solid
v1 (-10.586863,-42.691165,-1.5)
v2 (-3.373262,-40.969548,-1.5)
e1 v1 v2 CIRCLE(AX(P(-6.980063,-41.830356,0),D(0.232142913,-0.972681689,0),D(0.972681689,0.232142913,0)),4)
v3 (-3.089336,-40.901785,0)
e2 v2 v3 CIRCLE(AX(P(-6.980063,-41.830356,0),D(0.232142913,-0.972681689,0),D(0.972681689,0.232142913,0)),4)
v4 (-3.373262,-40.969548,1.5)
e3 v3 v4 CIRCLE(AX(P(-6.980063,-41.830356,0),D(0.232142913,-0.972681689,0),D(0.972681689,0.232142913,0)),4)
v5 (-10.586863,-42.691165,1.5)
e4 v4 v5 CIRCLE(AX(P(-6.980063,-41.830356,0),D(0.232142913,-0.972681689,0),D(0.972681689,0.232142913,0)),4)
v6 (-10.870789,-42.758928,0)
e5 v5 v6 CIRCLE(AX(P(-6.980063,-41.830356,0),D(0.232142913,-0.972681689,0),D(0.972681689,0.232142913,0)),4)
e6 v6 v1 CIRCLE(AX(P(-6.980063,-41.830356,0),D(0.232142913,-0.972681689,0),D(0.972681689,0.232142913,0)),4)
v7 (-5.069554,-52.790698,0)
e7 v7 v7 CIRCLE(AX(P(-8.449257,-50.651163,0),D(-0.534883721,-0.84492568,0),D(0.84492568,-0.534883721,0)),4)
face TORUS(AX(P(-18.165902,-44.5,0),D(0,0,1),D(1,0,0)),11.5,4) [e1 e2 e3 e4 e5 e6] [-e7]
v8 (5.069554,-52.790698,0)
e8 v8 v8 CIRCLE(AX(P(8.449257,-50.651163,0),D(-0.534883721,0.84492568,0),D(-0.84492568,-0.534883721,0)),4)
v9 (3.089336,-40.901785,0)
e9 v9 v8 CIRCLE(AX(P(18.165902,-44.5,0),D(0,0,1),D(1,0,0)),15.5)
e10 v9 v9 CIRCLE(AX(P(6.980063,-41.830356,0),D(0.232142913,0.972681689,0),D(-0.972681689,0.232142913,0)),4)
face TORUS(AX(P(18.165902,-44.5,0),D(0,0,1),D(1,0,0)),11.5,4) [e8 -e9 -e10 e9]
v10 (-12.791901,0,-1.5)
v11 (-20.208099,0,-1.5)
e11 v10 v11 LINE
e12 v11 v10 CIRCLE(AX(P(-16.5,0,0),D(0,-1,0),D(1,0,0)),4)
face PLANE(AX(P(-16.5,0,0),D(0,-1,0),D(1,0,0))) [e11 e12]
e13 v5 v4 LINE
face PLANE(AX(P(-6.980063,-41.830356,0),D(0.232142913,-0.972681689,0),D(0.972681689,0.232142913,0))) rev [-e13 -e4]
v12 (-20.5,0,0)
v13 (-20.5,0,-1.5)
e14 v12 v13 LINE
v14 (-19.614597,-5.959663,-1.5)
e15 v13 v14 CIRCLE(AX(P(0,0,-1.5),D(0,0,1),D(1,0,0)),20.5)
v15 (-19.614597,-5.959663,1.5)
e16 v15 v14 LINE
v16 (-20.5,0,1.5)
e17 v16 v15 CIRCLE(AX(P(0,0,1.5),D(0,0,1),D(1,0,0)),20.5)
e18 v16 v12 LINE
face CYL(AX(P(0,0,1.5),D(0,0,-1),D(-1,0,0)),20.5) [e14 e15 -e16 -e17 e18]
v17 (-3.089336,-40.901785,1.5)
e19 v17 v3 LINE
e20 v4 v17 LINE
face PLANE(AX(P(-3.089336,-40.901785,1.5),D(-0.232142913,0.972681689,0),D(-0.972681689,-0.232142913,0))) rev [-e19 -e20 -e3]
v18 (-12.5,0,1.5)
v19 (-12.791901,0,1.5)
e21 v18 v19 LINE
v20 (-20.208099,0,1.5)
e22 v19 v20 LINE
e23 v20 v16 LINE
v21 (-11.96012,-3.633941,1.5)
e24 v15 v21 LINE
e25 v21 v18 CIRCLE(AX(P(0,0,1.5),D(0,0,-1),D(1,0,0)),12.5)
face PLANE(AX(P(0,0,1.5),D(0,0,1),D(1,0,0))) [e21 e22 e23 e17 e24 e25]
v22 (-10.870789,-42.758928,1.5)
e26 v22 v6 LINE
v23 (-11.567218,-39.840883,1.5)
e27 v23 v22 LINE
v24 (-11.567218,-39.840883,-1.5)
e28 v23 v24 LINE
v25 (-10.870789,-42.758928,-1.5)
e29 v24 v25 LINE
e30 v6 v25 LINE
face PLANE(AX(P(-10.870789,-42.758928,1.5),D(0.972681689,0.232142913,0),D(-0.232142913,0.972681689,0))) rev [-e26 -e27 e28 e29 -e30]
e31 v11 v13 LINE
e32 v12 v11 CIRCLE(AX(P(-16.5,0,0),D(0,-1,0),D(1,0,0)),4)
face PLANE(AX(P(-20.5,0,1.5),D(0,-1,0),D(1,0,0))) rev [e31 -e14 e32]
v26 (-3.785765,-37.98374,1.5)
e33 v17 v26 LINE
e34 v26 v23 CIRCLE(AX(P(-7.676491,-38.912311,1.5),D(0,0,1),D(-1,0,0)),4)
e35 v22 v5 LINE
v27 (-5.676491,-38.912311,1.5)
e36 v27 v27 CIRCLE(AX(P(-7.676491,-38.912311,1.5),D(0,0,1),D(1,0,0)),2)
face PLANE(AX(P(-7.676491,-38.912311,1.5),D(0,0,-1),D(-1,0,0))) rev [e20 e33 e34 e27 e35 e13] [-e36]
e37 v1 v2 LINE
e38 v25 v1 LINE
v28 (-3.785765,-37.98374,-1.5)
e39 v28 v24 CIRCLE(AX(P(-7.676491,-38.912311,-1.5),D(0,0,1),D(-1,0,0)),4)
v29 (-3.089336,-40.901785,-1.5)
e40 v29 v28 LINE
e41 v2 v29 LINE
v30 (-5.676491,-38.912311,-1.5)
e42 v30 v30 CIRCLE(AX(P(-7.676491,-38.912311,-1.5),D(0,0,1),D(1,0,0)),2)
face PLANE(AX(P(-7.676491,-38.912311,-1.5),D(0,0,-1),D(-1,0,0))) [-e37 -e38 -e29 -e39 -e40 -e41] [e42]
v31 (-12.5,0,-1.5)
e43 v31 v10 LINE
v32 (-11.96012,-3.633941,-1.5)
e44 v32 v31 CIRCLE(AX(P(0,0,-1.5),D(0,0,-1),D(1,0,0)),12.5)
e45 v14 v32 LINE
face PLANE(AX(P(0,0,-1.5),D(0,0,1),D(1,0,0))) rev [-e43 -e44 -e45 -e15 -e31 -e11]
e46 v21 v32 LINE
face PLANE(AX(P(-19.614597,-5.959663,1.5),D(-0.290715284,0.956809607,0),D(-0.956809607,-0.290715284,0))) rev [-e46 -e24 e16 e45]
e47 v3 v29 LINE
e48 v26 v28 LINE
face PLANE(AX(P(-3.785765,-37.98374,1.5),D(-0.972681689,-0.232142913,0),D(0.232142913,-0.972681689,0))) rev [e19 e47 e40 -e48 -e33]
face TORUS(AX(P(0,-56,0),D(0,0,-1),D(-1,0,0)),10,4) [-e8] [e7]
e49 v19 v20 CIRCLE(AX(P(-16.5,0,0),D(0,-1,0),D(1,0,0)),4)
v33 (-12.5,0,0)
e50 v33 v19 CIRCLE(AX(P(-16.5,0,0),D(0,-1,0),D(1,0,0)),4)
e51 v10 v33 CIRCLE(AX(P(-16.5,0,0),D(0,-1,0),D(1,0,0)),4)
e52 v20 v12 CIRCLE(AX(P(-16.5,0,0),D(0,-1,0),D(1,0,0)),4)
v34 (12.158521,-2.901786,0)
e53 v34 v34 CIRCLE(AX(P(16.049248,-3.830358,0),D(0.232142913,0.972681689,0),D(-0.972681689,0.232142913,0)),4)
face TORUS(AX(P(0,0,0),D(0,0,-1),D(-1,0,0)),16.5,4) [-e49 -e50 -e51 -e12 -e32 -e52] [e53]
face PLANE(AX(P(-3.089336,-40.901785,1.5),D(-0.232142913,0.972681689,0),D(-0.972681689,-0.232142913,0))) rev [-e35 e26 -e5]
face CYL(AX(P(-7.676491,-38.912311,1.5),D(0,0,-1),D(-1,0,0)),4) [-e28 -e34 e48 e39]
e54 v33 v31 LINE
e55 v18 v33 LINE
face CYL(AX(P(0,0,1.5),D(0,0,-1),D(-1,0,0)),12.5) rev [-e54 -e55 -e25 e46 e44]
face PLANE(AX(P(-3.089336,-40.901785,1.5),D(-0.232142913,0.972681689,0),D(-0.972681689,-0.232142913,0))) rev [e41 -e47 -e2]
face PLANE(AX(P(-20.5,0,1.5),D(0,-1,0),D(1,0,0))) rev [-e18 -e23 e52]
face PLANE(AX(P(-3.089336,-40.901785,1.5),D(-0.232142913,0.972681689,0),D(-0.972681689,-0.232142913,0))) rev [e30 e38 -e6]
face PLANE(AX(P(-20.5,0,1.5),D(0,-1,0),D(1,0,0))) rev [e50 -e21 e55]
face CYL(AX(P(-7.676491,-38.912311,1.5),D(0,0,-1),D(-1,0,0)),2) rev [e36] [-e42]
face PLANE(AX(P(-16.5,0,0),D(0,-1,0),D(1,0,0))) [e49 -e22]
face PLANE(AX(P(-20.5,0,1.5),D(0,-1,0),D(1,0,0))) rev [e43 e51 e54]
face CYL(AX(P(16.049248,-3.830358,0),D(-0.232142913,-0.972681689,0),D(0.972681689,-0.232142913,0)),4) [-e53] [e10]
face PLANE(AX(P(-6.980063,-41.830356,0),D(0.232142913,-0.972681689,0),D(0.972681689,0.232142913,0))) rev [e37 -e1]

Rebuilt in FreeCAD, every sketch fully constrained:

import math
import FreeCAD as App
import Part
import Sketcher

V = App.Vector

doc = App.newDocument("Part")
params = doc.addObject("Spreadsheet::Sheet", "Params")
for row, (alias, value) in enumerate([
    ("sketch1_diameter", "8 mm"),
    ("sketch2_radius", "10 mm"),
    ("sketch2_radius2", "16.5 mm"),
    ("sketch2_radius3", "11.5 mm"),
    ("sketch3_diameter", "4 mm"),
    ("sketch3_radius", "4 mm"),
    ("sketch3_radius2", "12.5 mm"),
    ("sketch3_length", "3 mm"),
    ("pad1_length", "3 mm"),
], start=1):
    params.set(f"A{row}", alias)
    params.set(f"B{row}", "=" + value)
    params.setAlias(f"B{row}", alias)

body = doc.addObject("PartDesign::Body", "Body")

# Sketch on XZ plane
sketch1 = body.newObject("Sketcher::SketchObject", "Sketch")
sketch1.AttachmentSupport = (doc.getObject("XZ_Plane"), [""])
sketch1.MapMode = "FlatFace"
sketch1.addGeometry(Part.Circle(V(-16.5, 0, 0), V(0, 0, 1), 4), False)
sketch1.addConstraint(Sketcher.Constraint("PointOnObject", 0, 3, -1))
sketch1.addConstraint(Sketcher.Constraint("Diameter", 0, 8.0))
sketch1.addConstraint(Sketcher.Constraint("DistanceX", 0, 3, -1, 1, 16.5))
sketch1.setExpression("Constraints[1]", "Params.sketch1_diameter")

# Sketch on XY plane
sketch2 = body.newObject("Sketcher::SketchObject", "Sketch001")
sketch2.AttachmentSupport = (doc.getObject("XY_Plane"), [""])
sketch2.MapMode = "FlatFace"
sketch2.addGeometry(Part.ArcOfCircle(Part.Circle(V(0, 0, 0), V(0, 0, 1), 16.5), math.radians(-13.423267), math.radians(180)), False)
sketch2.addGeometry(Part.LineSegment(V(16.049248, -3.830358, 0), V(6.980063, -41.830356, 0)), False)
sketch2.addGeometry(Part.ArcOfCircle(Part.Circle(V(18.165902, -44.5, 0), V(0, 0, 1), 11.5), math.radians(166.576733), math.radians(212.336026)), False)
sketch2.addGeometry(Part.ArcOfCircle(Part.Circle(V(0, -56, 0), V(0, 0, 1), 10), math.radians(147.663974), math.radians(392.336026)), False)
sketch2.addGeometry(Part.ArcOfCircle(Part.Circle(V(-18.165902, -44.5, 0), V(0, 0, 1), 11.5), math.radians(-32.336026), math.radians(13.423267)), False)
sketch2.addConstraint(Sketcher.Constraint("Tangent", 0, 1, 1, 1))
sketch2.addConstraint(Sketcher.Constraint("Tangent", 1, 2, 2, 1))
sketch2.addConstraint(Sketcher.Constraint("Tangent", 2, 2, 3, 2))
sketch2.addConstraint(Sketcher.Constraint("Tangent", 3, 1, 4, 1))
sketch2.addConstraint(Sketcher.Constraint("Coincident", 0, 3, -1, 1))
sketch2.addConstraint(Sketcher.Constraint("Equal", 2, 4))
sketch2.addConstraint(Sketcher.Constraint("Symmetric", 2, 3, 4, 3, -2))
sketch2.addConstraint(Sketcher.Constraint("PointOnObject", 0, 2, -1))
sketch2.addConstraint(Sketcher.Constraint("Horizontal", 1, 2, 4, 2))
sketch2.addConstraint(Sketcher.Constraint("Radius", 3, 10.0))
sketch2.addConstraint(Sketcher.Constraint("Radius", 0, 16.5))
sketch2.addConstraint(Sketcher.Constraint("Radius", 2, 11.5))
sketch2.addConstraint(Sketcher.Constraint("DistanceY", 3, 3, -1, 1, 56.0))
sketch2.addConstraint(Sketcher.Constraint("DistanceY", 1, 2, 0, 1, 37.999998))
sketch2.setExpression("Constraints[9]", "Params.sketch2_radius")
sketch2.setExpression("Constraints[10]", "Params.sketch2_radius2")
sketch2.setExpression("Constraints[11]", "Params.sketch2_radius3")
doc.recompute()

additivepipe = body.newObject("PartDesign::AdditivePipe", "AdditivePipe")
additivepipe.Profile = sketch1
additivepipe.Spine = (sketch2, ["Edge1", "Edge2", "Edge3", "Edge4", "Edge5"])

# Sketch on XY plane
sketch3 = body.newObject("Sketcher::SketchObject", "Sketch002")
sketch3.AttachmentSupport = (doc.getObject("XY_Plane"), [""])
sketch3.MapMode = "FlatFace"
sketch3.addGeometry(Part.LineSegment(V(-19.614597, -5.959663, 0), V(-11.96012, -3.633941, 0)), False)
sketch3.addGeometry(Part.ArcOfCircle(Part.Circle(V(0, 0, 0), V(0, 0, 1), 12.5), math.radians(-180), math.radians(-163.099216)), False)
sketch3.addGeometry(Part.LineSegment(V(-12.5, 0, 0), V(-20.5, 0, 0)), False)
sketch3.addGeometry(Part.ArcOfCircle(Part.Circle(V(0, 0, 0), V(0, 0, 1), 20.5), math.radians(-180), math.radians(-163.099216)), False)
sketch3.addGeometry(Part.LineSegment(V(-10.870789, -42.758928, 0), V(-3.089336, -40.901785, 0)), False)
sketch3.addGeometry(Part.LineSegment(V(-3.089336, -40.901785, 0), V(-3.785765, -37.98374, 0)), False)
sketch3.addGeometry(Part.ArcOfCircle(Part.Circle(V(-7.676491, -38.912311, 0), V(0, 0, 1), 4), math.radians(13.423267), math.radians(193.423267)), False)
sketch3.addGeometry(Part.LineSegment(V(-11.567218, -39.840883, 0), V(-10.870789, -42.758928, 0)), False)
sketch3.addGeometry(Part.Circle(V(-7.676491, -38.912311, 0), V(0, 0, 1), 2), False)
sketch3.addConstraint(Sketcher.Constraint("Coincident", 0, 2, 1, 2))
sketch3.addConstraint(Sketcher.Constraint("Coincident", 1, 1, 2, 1))
sketch3.addConstraint(Sketcher.Constraint("Coincident", 2, 2, 3, 1))
sketch3.addConstraint(Sketcher.Constraint("Coincident", 3, 2, 0, 1))
sketch3.addConstraint(Sketcher.Constraint("Coincident", 4, 2, 5, 1))
sketch3.addConstraint(Sketcher.Constraint("Tangent", 5, 2, 6, 1))
sketch3.addConstraint(Sketcher.Constraint("Tangent", 6, 2, 7, 1))
sketch3.addConstraint(Sketcher.Constraint("Coincident", 7, 2, 4, 1))
sketch3.addConstraint(Sketcher.Constraint("Horizontal", 2))
sketch3.addConstraint(Sketcher.Constraint("Coincident", 1, 3, -1, 1))
sketch3.addConstraint(Sketcher.Constraint("Coincident", 3, 3, -1, 1))
sketch3.addConstraint(Sketcher.Constraint("Coincident", 8, 3, 6, 3))
sketch3.addConstraint(Sketcher.Constraint("PointOnObject", 1, 1, -1))
sketch3.addConstraint(Sketcher.Constraint("Perpendicular", 4, 5))
sketch3.addConstraint(Sketcher.Constraint("Parallel", 5, 7))
sketch3.addConstraint(Sketcher.Constraint("Equal", 0, 4))
sketch3.addConstraint(Sketcher.Constraint("Diameter", 8, 4.0))
sketch3.addConstraint(Sketcher.Constraint("Radius", 6, 4.0))
sketch3.addConstraint(Sketcher.Constraint("Radius", 1, 12.5))
sketch3.addConstraint(Sketcher.Constraint("Distance", 5, 3.0))
sketch3.addConstraint(Sketcher.Constraint("DistanceY", 5, 2, 0, 2, 34.349799))
sketch3.addConstraint(Sketcher.Constraint("DistanceY", 4, 2, 6, 2, 1.060902))
sketch3.addConstraint(Sketcher.Constraint("DistanceX", 6, 3, -1, 1, 7.676491))
sketch3.addConstraint(Sketcher.Constraint("DistanceY", 6, 3, -1, 1, 38.912311))
sketch3.addConstraint(Sketcher.Constraint("DistanceX", 3, 2, 4, 2, 16.525261))
sketch3.setExpression("Constraints[16]", "Params.sketch3_diameter")
sketch3.setExpression("Constraints[17]", "Params.sketch3_radius")
sketch3.setExpression("Constraints[18]", "Params.sketch3_radius2")
sketch3.setExpression("Constraints[19]", "Params.sketch3_length")
pad1 = body.newObject("PartDesign::Pad", "Pad")
pad1.Profile = sketch3
pad1.setExpression("Length", "Params.pad1_length")
pad1.Midplane = True

doc.recompute()
